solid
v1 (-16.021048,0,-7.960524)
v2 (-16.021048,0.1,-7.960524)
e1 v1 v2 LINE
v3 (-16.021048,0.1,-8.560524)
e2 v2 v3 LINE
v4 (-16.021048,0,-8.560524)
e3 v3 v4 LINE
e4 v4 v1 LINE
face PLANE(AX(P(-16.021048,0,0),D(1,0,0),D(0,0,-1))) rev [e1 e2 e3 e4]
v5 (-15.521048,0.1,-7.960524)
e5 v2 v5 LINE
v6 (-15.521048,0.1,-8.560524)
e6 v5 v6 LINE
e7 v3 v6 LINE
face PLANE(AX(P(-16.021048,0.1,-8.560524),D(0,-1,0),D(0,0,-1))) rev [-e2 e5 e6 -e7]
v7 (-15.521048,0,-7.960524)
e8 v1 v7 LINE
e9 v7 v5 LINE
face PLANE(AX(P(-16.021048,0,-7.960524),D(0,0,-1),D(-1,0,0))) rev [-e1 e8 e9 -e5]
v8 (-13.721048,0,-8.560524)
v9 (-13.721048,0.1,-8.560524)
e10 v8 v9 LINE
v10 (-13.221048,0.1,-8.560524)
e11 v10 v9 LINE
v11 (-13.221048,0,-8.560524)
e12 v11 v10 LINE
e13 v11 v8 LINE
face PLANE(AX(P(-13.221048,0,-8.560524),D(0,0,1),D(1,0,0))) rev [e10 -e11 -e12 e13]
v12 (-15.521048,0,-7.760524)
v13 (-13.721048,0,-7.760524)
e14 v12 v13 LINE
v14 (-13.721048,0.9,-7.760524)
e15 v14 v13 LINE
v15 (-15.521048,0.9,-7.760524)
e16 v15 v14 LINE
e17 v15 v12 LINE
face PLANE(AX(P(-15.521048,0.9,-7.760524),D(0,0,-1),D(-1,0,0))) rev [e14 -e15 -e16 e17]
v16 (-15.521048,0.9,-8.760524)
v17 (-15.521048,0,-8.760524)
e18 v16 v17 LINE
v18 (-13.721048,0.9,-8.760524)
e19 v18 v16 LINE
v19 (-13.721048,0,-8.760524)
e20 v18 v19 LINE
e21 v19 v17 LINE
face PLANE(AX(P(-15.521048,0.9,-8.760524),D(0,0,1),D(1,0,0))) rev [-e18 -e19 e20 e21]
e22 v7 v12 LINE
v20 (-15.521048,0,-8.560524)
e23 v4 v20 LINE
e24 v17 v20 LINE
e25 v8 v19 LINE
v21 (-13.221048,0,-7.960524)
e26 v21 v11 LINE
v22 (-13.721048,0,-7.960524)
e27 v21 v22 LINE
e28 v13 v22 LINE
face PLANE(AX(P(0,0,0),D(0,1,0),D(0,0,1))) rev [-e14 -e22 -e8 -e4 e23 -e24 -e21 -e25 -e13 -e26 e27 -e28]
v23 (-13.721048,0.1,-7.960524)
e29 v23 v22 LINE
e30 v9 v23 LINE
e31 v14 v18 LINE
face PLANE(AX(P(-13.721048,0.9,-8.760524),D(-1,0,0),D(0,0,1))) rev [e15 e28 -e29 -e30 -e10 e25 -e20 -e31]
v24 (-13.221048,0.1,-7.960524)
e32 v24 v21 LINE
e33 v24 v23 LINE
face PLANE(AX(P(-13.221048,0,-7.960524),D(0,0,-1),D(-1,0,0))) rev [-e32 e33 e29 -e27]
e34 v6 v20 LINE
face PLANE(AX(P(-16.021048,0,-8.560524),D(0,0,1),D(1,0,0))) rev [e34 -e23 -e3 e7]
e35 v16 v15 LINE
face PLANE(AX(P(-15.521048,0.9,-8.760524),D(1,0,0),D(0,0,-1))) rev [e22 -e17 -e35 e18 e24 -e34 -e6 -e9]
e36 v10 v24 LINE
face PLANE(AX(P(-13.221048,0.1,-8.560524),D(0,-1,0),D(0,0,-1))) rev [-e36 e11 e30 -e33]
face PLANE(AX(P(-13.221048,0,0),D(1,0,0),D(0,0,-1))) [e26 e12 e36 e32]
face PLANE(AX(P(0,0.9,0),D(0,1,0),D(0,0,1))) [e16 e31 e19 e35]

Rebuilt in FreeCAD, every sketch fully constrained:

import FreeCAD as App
import Part
import Sketcher
Q = App.Units.Quantity


def add_polygon(sketch, points):
    """Adds a closed chain of lines whose ends are joined by coincident constraints."""
    first, n = sketch.GeometryCount, len(points)
    for a, b in zip(points, points[1:] + points[:1]):
        sketch.addGeometry(Part.LineSegment(App.Vector(*a, 0), App.Vector(*b, 0)), False)
    for i in range(n):
        sketch.addConstraint(Sketcher.Constraint("Coincident", first + i, 2, first + (i + 1) % n, 1))

doc = App.newDocument("Part")
body = doc.addObject("PartDesign::Body", "Body")

# Sketch on XZ plane
sketch1 = body.newObject("Sketcher::SketchObject", "Sketch")
sketch1.AttachmentSupport = (doc.getObject("XZ_Plane"), [""])
sketch1.MapMode = "FlatFace"
add_polygon(sketch1, [(-15.5, -8.8), (-15.5, -7.8), (-13.7, -7.8), (-13.7, -8.8)])  # lines 0-3
sketch1.addConstraint([
    Sketcher.Constraint("Vertical", 0),
    Sketcher.Constraint("Horizontal", 1),
    Sketcher.Constraint("Vertical", 2),
    Sketcher.Constraint("Horizontal", 3),
    Sketcher.Constraint("DistanceY", 0, 1, 0, 2, Q("1 mm")),
    Sketcher.Constraint("DistanceX", 1, 1, 1, 2, Q("1.8 mm")),
    Sketcher.Constraint("DistanceX", 0, 2, -1, 1, Q("15.521048 mm")),
    Sketcher.Constraint("DistanceY", 0, 2, -1, 1, Q("7.760524 mm")),
])
pad1 = body.newObject("PartDesign::Pad", "Pad")
pad1.Profile = sketch1
pad1.Length = 0.9
pad1.Reversed = True

# Sketch on YZ plane
sketch2 = body.newObject("Sketcher::SketchObject", "Sketch001")
sketch2.AttachmentSupport = (doc.getObject("YZ_Plane"), [""])
sketch2.MapMode = "FlatFace"
sketch2.AttachmentOffset = App.Placement(App.Vector(0, 0, -15.521048), App.Rotation())
add_polygon(sketch2, [(0.1, -8.56), (0, -8.56), (0, -7.96), (0.1, -7.96)])  # lines 0-3
sketch2.addConstraint([
    Sketcher.Constraint("Horizontal", 0),
    Sketcher.Constraint("Vertical", 1),
    Sketcher.Constraint("Horizontal", 2),
    Sketcher.Constraint("Vertical", 3),
    Sketcher.Constraint("PointOnObject", 0, 2, -2),
    Sketcher.Constraint("DistanceX", 0, 2, 0, 1, Q("0.1 mm")),
    Sketcher.Constraint("DistanceY", 1, 1, 1, 2, Q("0.6 mm")),
    Sketcher.Constraint("DistanceY", 0, 2, -1, 1, Q("8.560524 mm")),
])
pad2 = body.newObject("PartDesign::Pad", "Pad001")
pad2.Profile = sketch2
pad2.Length = 0.5
pad2.Reversed = True

# Sketch on YZ plane
sketch3 = body.newObject("Sketcher::SketchObject", "Sketch002")
sketch3.AttachmentSupport = (doc.getObject("YZ_Plane"), [""])
sketch3.MapMode = "FlatFace"
sketch3.AttachmentOffset = App.Placement(App.Vector(0, 0, -13.721048), App.Rotation())
add_polygon(sketch3, [(0.1, -7.96), (0, -7.96), (0, -8.56), (0.1, -8.56)])  # lines 0-3
sketch3.addConstraint([
    Sketcher.Constraint("Horizontal", 0),
    Sketcher.Constraint("Vertical", 1),
    Sketcher.Constraint("Horizontal", 2),
    Sketcher.Constraint("Vertical", 3),
    Sketcher.Constraint("PointOnObject", 0, 2, -2),
    Sketcher.Constraint("DistanceX", 0, 2, 0, 1, Q("0.1 mm")),
    Sketcher.Constraint("DistanceY", 1, 2, 1, 1, Q("0.6 mm")),
    Sketcher.Constraint("DistanceY", 0, 2, -1, 1, Q("7.960524 mm")),
])
pad3 = body.newObject("PartDesign::Pad", "Pad002")
pad3.Profile = sketch3
pad3.Length = 0.5

doc.recompute()
